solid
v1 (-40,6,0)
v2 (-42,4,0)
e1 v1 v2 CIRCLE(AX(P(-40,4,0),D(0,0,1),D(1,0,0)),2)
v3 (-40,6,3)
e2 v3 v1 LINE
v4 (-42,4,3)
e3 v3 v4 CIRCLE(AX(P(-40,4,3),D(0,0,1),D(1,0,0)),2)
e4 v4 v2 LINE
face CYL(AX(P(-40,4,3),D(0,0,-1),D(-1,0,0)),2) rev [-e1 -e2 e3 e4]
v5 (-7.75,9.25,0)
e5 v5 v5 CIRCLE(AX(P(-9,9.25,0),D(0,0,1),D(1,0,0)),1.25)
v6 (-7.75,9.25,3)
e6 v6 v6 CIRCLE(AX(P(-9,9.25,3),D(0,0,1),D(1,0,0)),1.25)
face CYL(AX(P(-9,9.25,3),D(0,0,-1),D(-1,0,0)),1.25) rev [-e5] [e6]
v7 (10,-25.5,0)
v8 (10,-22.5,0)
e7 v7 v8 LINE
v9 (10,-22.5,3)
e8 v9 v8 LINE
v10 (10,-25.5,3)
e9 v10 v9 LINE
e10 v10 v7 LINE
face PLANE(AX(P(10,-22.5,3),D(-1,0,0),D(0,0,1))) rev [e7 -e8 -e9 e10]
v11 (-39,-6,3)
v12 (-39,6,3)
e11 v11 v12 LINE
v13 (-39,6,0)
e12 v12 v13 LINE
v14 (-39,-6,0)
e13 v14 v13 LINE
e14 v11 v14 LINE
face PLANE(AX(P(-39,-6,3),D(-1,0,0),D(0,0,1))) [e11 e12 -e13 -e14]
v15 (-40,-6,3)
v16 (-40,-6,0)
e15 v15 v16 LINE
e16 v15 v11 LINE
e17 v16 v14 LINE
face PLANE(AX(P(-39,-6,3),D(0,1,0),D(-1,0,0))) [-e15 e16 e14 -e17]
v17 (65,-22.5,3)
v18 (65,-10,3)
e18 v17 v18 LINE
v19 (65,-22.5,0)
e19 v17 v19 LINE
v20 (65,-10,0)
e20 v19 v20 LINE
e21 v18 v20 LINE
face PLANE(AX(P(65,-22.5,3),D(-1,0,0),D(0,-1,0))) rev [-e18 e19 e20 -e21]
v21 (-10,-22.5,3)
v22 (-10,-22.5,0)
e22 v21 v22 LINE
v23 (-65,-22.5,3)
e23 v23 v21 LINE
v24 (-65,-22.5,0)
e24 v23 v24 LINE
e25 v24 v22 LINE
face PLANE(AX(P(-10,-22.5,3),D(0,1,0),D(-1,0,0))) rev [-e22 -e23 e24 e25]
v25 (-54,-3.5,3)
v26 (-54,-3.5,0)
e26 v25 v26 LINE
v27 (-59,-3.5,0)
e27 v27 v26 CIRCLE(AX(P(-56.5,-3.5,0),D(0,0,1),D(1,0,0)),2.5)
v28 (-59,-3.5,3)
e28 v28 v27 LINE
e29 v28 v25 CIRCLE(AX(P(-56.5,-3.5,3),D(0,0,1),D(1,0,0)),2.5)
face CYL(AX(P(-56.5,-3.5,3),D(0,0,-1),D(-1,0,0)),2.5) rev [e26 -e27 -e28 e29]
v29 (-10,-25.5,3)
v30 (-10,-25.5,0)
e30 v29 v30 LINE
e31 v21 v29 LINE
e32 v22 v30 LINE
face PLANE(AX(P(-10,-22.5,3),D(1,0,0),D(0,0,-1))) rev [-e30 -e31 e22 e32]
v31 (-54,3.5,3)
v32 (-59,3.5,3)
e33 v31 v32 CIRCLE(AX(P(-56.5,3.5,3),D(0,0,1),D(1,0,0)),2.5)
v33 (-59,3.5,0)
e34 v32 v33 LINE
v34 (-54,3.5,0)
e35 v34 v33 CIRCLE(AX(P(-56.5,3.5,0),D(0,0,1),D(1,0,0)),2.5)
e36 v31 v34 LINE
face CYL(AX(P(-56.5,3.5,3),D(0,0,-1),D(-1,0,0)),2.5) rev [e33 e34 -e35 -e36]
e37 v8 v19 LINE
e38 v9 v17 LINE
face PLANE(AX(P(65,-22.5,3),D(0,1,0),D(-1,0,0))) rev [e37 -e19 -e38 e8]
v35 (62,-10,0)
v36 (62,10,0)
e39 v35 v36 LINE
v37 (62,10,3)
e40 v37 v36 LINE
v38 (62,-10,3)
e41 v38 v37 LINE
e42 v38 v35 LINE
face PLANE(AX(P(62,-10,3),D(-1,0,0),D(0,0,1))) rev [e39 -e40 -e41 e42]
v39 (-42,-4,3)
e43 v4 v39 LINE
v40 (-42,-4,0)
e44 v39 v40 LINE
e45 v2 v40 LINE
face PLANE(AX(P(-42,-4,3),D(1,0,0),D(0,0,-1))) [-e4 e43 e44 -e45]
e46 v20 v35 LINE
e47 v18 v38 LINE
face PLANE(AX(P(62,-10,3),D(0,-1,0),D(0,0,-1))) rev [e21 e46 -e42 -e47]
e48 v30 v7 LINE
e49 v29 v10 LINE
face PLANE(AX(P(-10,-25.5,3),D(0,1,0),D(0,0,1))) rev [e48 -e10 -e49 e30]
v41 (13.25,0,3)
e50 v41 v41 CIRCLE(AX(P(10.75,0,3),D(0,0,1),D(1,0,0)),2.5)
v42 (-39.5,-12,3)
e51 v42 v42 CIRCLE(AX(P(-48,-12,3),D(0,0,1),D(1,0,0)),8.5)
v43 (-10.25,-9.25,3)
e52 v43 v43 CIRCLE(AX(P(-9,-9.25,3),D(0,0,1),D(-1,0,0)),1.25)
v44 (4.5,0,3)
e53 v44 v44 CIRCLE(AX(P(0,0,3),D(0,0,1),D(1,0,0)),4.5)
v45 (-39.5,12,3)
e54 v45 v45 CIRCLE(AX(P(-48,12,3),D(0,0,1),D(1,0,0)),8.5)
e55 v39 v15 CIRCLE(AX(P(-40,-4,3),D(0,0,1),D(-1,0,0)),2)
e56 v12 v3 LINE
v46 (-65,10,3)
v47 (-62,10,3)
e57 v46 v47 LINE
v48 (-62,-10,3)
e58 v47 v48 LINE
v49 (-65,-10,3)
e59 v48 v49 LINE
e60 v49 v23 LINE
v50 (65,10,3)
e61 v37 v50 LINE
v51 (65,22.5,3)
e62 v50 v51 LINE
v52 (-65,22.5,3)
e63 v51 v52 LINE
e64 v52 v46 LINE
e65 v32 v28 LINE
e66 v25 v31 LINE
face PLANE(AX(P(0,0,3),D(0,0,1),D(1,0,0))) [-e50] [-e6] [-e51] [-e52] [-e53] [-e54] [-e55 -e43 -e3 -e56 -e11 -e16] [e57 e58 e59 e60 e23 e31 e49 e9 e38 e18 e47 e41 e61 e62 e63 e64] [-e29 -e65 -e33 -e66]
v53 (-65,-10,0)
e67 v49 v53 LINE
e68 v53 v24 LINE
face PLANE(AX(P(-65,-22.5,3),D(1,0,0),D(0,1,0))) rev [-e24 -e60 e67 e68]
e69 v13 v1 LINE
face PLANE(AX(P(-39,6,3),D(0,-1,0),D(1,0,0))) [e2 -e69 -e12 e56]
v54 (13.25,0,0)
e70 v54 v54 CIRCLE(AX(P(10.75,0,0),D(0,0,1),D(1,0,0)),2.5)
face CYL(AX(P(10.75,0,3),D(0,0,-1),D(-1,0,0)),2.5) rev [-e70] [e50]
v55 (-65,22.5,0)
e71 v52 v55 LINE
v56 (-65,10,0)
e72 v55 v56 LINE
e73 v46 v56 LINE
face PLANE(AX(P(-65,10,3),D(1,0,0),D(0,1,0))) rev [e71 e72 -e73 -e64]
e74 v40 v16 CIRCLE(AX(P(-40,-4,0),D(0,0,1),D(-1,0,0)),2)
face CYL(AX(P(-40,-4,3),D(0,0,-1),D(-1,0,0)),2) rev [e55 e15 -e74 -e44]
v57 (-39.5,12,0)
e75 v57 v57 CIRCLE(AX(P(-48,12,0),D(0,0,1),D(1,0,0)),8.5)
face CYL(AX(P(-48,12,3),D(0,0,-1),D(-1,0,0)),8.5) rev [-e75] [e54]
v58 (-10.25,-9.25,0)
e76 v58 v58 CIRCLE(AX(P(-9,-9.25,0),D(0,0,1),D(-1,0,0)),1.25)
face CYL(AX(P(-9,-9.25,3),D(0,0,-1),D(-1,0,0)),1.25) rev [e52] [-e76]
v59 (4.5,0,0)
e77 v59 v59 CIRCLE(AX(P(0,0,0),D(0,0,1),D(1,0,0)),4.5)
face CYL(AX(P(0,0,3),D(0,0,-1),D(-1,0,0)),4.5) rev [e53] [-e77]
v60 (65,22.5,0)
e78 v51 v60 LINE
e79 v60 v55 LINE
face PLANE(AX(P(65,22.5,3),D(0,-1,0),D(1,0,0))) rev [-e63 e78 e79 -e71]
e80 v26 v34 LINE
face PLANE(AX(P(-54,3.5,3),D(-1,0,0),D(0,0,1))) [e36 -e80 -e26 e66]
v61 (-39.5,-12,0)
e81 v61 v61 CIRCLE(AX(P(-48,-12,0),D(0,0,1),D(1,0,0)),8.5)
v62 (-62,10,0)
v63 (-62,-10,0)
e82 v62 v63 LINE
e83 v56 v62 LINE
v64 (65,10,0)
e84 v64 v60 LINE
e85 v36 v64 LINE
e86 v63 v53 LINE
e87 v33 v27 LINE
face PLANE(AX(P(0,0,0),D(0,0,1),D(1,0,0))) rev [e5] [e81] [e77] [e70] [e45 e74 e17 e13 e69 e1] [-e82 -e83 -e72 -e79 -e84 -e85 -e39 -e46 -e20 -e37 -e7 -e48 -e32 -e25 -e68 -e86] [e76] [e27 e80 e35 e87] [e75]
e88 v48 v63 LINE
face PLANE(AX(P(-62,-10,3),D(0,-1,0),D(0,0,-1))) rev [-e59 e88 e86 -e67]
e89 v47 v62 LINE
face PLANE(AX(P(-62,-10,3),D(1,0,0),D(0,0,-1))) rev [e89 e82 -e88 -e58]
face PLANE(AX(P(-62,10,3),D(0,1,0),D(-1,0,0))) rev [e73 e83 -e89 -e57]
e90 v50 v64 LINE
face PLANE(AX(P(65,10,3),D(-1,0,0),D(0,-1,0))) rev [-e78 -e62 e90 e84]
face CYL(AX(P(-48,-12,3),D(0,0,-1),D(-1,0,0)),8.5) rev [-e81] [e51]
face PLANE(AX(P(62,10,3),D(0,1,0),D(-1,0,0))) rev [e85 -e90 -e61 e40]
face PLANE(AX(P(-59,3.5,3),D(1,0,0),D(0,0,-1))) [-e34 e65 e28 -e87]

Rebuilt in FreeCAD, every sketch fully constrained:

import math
import FreeCAD as App
import Part
import Sketcher
from FreeCAD import Vector
Q = App.Units.Quantity

doc = App.newDocument("Part")
body = doc.addObject("PartDesign::Body", "Body")

# Sketch on XY plane
sketch1 = body.newObject("Sketcher::SketchObject", "Sketch")
sketch1.AttachmentSupport = (doc.getObject("XY_Plane"), [""])
sketch1.MapMode = "FlatFace"
sketch1.addGeometry(Part.LineSegment(Vector(-65, -22.5, 0), Vector(-10, -22.5, 0)), False)
sketch1.addGeometry(Part.LineSegment(Vector(-10, -22.5, 0), Vector(-10, -25.5, 0)), False)
sketch1.addGeometry(Part.LineSegment(Vector(-10, -25.5, 0), Vector(10, -25.5, 0)), False)
sketch1.addGeometry(Part.LineSegment(Vector(10, -25.5, 0), Vector(10, -22.5, 0)), False)
sketch1.addGeometry(Part.LineSegment(Vector(10, -22.5, 0), Vector(65, -22.5, 0)), False)
sketch1.addGeometry(Part.LineSegment(Vector(65, -22.5, 0), Vector(65, -10, 0)), False)
sketch1.addGeometry(Part.LineSegment(Vector(65, -10, 0), Vector(62, -10, 0)), False)
sketch1.addGeometry(Part.LineSegment(Vector(62, -10, 0), Vector(62, 10, 0)), False)
sketch1.addGeometry(Part.LineSegment(Vector(62, 10, 0), Vector(65, 10, 0)), False)
sketch1.addGeometry(Part.LineSegment(Vector(65, 10, 0), Vector(65, 22.5, 0)), False)
sketch1.addGeometry(Part.LineSegment(Vector(65, 22.5, 0), Vector(-65, 22.5, 0)), False)
sketch1.addGeometry(Part.LineSegment(Vector(-65, 22.5, 0), Vector(-65, 10, 0)), False)
sketch1.addGeometry(Part.LineSegment(Vector(-65, 10, 0), Vector(-62, 10, 0)), False)
sketch1.addGeometry(Part.LineSegment(Vector(-62, 10, 0), Vector(-62, -10, 0)), False)
sketch1.addGeometry(Part.LineSegment(Vector(-62, -10, 0), Vector(-65, -10, 0)), False)
sketch1.addGeometry(Part.LineSegment(Vector(-65, -10, 0), Vector(-65, -22.5, 0)), False)
sketch1.addGeometry(Part.Circle(Vector(-9, -9.25, 0), Vector(0, 0, 1), 1.25), False)
sketch1.addGeometry(Part.Circle(Vector(-48, -12, 0), Vector(0, 0, 1), 8.5), False)
sketch1.addGeometry(Part.Circle(Vector(10.75, 0, 0), Vector(0, 0, 1), 2.5), False)
sketch1.addGeometry(Part.Circle(Vector(0, 0, 0), Vector(0, 0, 1), 4.5), False)
sketch1.addGeometry(Part.Circle(Vector(-9, 9.25, 0), Vector(0, 0, 1), 1.25), False)
sketch1.addGeometry(Part.LineSegment(Vector(-39, -6, 0), Vector(-40, -6, 0)), False)
sketch1.addGeometry(Part.ArcOfCircle(Part.Circle(Vector(-40, -4, 0), Vector(0, 0, 1), 2), math.radians(-180), math.radians(-90)), False)
sketch1.addGeometry(Part.LineSegment(Vector(-42, -4, 0), Vector(-42, 4, 0)), False)
sketch1.addGeometry(Part.ArcOfCircle(Part.Circle(Vector(-40, 4, 0), Vector(0, 0, 1), 2), math.radians(90), math.radians(180)), False)
sketch1.addGeometry(Part.LineSegment(Vector(-40, 6, 0), Vector(-39, 6, 0)), False)
sketch1.addGeometry(Part.LineSegment(Vector(-39, 6, 0), Vector(-39, -6, 0)), False)
sketch1.addGeometry(Part.LineSegment(Vector(-54, 3.5, 0), Vector(-54, -3.5, 0)), False)
sketch1.addGeometry(Part.ArcOfCircle(Part.Circle(Vector(-56.5, -3.5, 0), Vector(0, 0, 1), 2.5), math.radians(180), math.radians(360)), False)
sketch1.addGeometry(Part.LineSegment(Vector(-59, -3.5, 0), Vector(-59, 3.5, 0)), False)
sketch1.addGeometry(Part.ArcOfCircle(Part.Circle(Vector(-56.5, 3.5, 0), Vector(0, 0, 1), 2.5), math.radians(0), math.radians(180)), False)
sketch1.addGeometry(Part.Circle(Vector(-48, 12, 0), Vector(0, 0, 1), 8.5), False)
sketch1.addConstraint(Sketcher.Constraint("Coincident", 0, 2, 1, 1))
sketch1.addConstraint(Sketcher.Constraint("Coincident", 1, 2, 2, 1))
sketch1.addConstraint(Sketcher.Constraint("Coincident", 2, 2, 3, 1))
sketch1.addConstraint(Sketcher.Constraint("Coincident", 3, 2, 4, 1))
sketch1.addConstraint(Sketcher.Constraint("Coincident", 4, 2, 5, 1))
sketch1.addConstraint(Sketcher.Constraint("Coincident", 5, 2, 6, 1))
sketch1.addConstraint(Sketcher.Constraint("Coincident", 6, 2, 7, 1))
sketch1.addConstraint(Sketcher.Constraint("Coincident", 7, 2, 8, 1))
sketch1.addConstraint(Sketcher.Constraint("Coincident", 8, 2, 9, 1))
sketch1.addConstraint(Sketcher.Constraint("Coincident", 9, 2, 10, 1))
sketch1.addConstraint(Sketcher.Constraint("Coincident", 10, 2, 11, 1))
sketch1.addConstraint(Sketcher.Constraint("Coincident", 11, 2, 12, 1))
sketch1.addConstraint(Sketcher.Constraint("Coincident", 12, 2, 13, 1))
sketch1.addConstraint(Sketcher.Constraint("Coincident", 13, 2, 14, 1))
sketch1.addConstraint(Sketcher.Constraint("Coincident", 14, 2, 15, 1))
sketch1.addConstraint(Sketcher.Constraint("Coincident", 15, 2, 0, 1))
sketch1.addConstraint(Sketcher.Constraint("Tangent", 21, 2, 22, 2))
sketch1.addConstraint(Sketcher.Constraint("Tangent", 22, 1, 23, 1))
sketch1.addConstraint(Sketcher.Constraint("Tangent", 23, 2, 24, 2))
sketch1.addConstraint(Sketcher.Constraint("Tangent", 24, 1, 25, 1))
sketch1.addConstraint(Sketcher.Constraint("Coincident", 25, 2, 26, 1))
sketch1.addConstraint(Sketcher.Constraint("Coincident", 26, 2, 21, 1))
sketch1.addConstraint(Sketcher.Constraint("Tangent", 27, 2, 28, 2))
sketch1.addConstraint(Sketcher.Constraint("Tangent", 28, 1, 29, 1))
sketch1.addConstraint(Sketcher.Constraint("Tangent", 29, 2, 30, 2))
sketch1.addConstraint(Sketcher.Constraint("Tangent", 30, 1, 27, 1))
sketch1.addConstraint(Sketcher.Constraint("Horizontal", 0))
sketch1.addConstraint(Sketcher.Constraint("Vertical", 1))
sketch1.addConstraint(Sketcher.Constraint("Horizontal", 2))
sketch1.addConstraint(Sketcher.Constraint("Vertical", 3))
sketch1.addConstraint(Sketcher.Constraint("Horizontal", 4))
sketch1.addConstraint(Sketcher.Constraint("Vertical", 5))
sketch1.addConstraint(Sketcher.Constraint("Horizontal", 6))
sketch1.addConstraint(Sketcher.Constraint("Vertical", 7))
sketch1.addConstraint(Sketcher.Constraint("Horizontal", 8))
sketch1.addConstraint(Sketcher.Constraint("Vertical", 9))
sketch1.addConstraint(Sketcher.Constraint("Horizontal", 10))
sketch1.addConstraint(Sketcher.Constraint("Vertical", 11))
sketch1.addConstraint(Sketcher.Constraint("Horizontal", 12))
sketch1.addConstraint(Sketcher.Constraint("Vertical", 13))
sketch1.addConstraint(Sketcher.Constraint("Horizontal", 14))
sketch1.addConstraint(Sketcher.Constraint("Vertical", 15))
sketch1.addConstraint(Sketcher.Constraint("Horizontal", 21))
sketch1.addConstraint(Sketcher.Constraint("Vertical", 23))
sketch1.addConstraint(Sketcher.Constraint("Horizontal", 25))
sketch1.addConstraint(Sketcher.Constraint("Vertical", 26))
sketch1.addConstraint(Sketcher.Constraint("Vertical", 27))
sketch1.addConstraint(Sketcher.Constraint("Vertical", 29))
sketch1.addConstraint(Sketcher.Constraint("Coincident", 19, 3, -1, 1))
sketch1.addConstraint(Sketcher.Constraint("Equal", 16, 20))
sketch1.addConstraint(Sketcher.Constraint("Equal", 22, 24))
sketch1.addConstraint(Sketcher.Constraint("Equal", 18, 28))
sketch1.addConstraint(Sketcher.Constraint("Equal", 17, 31))
sketch1.addConstraint(Sketcher.Constraint("Symmetric", 4, 2, 10, 2, -1, 1))
sketch1.addConstraint(Sketcher.Constraint("Symmetric", 6, 2, 12, 2, -1, 1))
sketch1.addConstraint(Sketcher.Constraint("Symmetric", 8, 2, 14, 2, -1, 1))
sketch1.addConstraint(Sketcher.Constraint("Symmetric", 0, 2, 3, 2, -2))
sketch1.addConstraint(Sketcher.Constraint("Symmetric", 8, 2, 11, 2, -2))
sketch1.addConstraint(Sketcher.Constraint("Symmetric", 16, 3, 20, 3, -1))
sketch1.addConstraint(Sketcher.Constraint("Symmetric", 17, 3, 31, 3, -1))
sketch1.addConstraint(Sketcher.Constraint("PointOnObject", 18, 3, -1))
sketch1.addConstraint(Sketcher.Constraint("Equal", 14, 1))
sketch1.addConstraint(Sketcher.Constraint("Equal", 2, 7))
sketch1.addConstraint(Sketcher.Constraint("Diameter", 17, Q("17 mm")))
sketch1.addConstraint(Sketcher.Constraint("Diameter", 18, Q("5 mm")))
sketch1.addConstraint(Sketcher.Constraint("Diameter", 19, Q("9 mm")))
sketch1.addConstraint(Sketcher.Constraint("Radius", 22, Q("2 mm")))
sketch1.addConstraint(Sketcher.Constraint("Diameter", 16, Q("2.5 mm")))
sketch1.addConstraint(Sketcher.Constraint("DistanceX", 0, 1, 0, 2, Q("55 mm")))
sketch1.addConstraint(Sketcher.Constraint("DistanceX", 2, 1, 2, 2, Q("20 mm")))
sketch1.addConstraint(Sketcher.Constraint("DistanceX", 6, 2, 6, 1, Q("3 mm")))
sketch1.addConstraint(Sketcher.Constraint("DistanceX", 21, 2, 21, 1, Q("1 mm")))
sketch1.addConstraint(Sketcher.Constraint("DistanceY", 23, 1, 23, 2, Q("8 mm")))
sketch1.addConstraint(Sketcher.Constraint("DistanceY", 27, 2, 27, 1, Q("7 mm")))
sketch1.addConstraint(Sketcher.Constraint("DistanceY", 5, 1, 5, 2, Q("12.5 mm")))
sketch1.addConstraint(Sketcher.Constraint("DistanceX", 16, 3, -1, 1, Q("9 mm")))
sketch1.addConstraint(Sketcher.Constraint("DistanceX", 17, 3, -1, 1, Q("48 mm")))
sketch1.addConstraint(Sketcher.Constraint("DistanceY", 17, 3, -1, 1, Q("12 mm")))
sketch1.addConstraint(Sketcher.Constraint("DistanceX", 22, 3, -1, 1, Q("40 mm")))
sketch1.addConstraint(Sketcher.Constraint("DistanceY", 22, 3, -1, 1, Q("4 mm")))
sketch1.addConstraint(Sketcher.Constraint("DistanceX", 27, 2, -1, 1, Q("54 mm")))
sketch1.addConstraint(Sketcher.Constraint("DistanceY", 30, 3, 10, 2, Q("19 mm")))
sketch1.addConstraint(Sketcher.Constraint("DistanceY", 16, 3, 20, 3, Q("18.5 mm")))
sketch1.addConstraint(Sketcher.Constraint("DistanceX", -1, 1, 18, 3, Q("10.75 mm")))
pad1 = body.newObject("PartDesign::Pad", "Pad")
pad1.Profile = sketch1
pad1.Length = 3

doc.recompute()
